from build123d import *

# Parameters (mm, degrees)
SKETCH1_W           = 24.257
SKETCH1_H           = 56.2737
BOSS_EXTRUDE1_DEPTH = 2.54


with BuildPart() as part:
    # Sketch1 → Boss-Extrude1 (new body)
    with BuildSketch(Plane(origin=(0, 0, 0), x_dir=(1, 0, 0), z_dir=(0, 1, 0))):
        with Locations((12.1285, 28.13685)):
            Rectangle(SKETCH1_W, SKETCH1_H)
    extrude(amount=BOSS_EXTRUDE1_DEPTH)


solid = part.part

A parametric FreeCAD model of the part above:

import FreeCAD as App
import Part
import Sketcher
from FreeCAD import Vector
Q = App.Units.Quantity


def add_polygon(sketch, points):
    """Adds a closed chain of lines whose ends are joined by coincident constraints."""
    first, n = sketch.GeometryCount, len(points)
    for a, b in zip(points, points[1:] + points[:1]):
        sketch.addGeometry(Part.LineSegment(App.Vector(*a, 0), App.Vector(*b, 0)), False)
    for i in range(n):
        sketch.addConstraint(Sketcher.Constraint("Coincident", first + i, 2, first + (i + 1) % n, 1))

doc = App.newDocument("Part")
body = doc.addObject("PartDesign::Body", "Body")

# Sketch on XZ plane
sketch1 = body.newObject("Sketcher::SketchObject", "Sketch")
sketch1.AttachmentSupport = (doc.getObject("XZ_Plane"), [""])
sketch1.MapMode = "FlatFace"
add_polygon(sketch1, [(0, -56.2737), (0, 0), (24.257, 0), (24.257, -56.2737)])  # lines 0-3
sketch1.addConstraint(Sketcher.Constraint("Vertical", 0))
sketch1.addConstraint(Sketcher.Constraint("Horizontal", 1))
sketch1.addConstraint(Sketcher.Constraint("Vertical", 2))
sketch1.addConstraint(Sketcher.Constraint("Horizontal", 3))
sketch1.addConstraint(Sketcher.Constraint("Coincident", 0, 2, -1, 1))
sketch1.addConstraint(Sketcher.Constraint("DistanceX", 1, 1, 1, 2, Q("0.955 in")))
sketch1.addConstraint(Sketcher.Constraint("DistanceY", 0, 1, 0, 2, Q("2.2155 in")))
pad1 = body.newObject("PartDesign::Pad", "Pad")
pad1.Profile = sketch1
pad1.Length = Q("0.1 in")
pad1.Reversed = True

doc.recompute()
